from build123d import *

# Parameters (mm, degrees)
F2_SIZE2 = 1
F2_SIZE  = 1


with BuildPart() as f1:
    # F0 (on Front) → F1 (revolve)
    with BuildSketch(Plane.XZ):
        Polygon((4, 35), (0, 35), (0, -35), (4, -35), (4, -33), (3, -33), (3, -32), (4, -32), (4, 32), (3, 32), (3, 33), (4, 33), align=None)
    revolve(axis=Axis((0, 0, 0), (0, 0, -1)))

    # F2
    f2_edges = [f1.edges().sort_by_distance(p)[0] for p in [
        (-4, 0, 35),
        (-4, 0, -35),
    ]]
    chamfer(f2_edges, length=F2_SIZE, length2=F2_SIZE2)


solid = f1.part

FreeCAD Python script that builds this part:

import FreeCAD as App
import Part
import Sketcher
from FreeCAD import Vector
Q = App.Units.Quantity


def edges_at(feature, points):
    """Names of the edges that pass closest to the given points."""
    edges = feature.Shape.Edges
    near = lambda p: min(range(len(edges)), key=lambda i: edges[i].distToShape(Part.Vertex(*p))[0])
    return sorted({f"Edge{near(p) + 1}" for p in points})


def add_polygon(sketch, points):
    """Adds a closed chain of lines whose ends are joined by coincident constraints."""
    first, n = sketch.GeometryCount, len(points)
    for a, b in zip(points, points[1:] + points[:1]):
        sketch.addGeometry(Part.LineSegment(App.Vector(*a, 0), App.Vector(*b, 0)), False)
    for i in range(n):
        sketch.addConstraint(Sketcher.Constraint("Coincident", first + i, 2, first + (i + 1) % n, 1))

doc = App.newDocument("Part")
body = doc.addObject("PartDesign::Body", "Body")

# Sketch on XZ plane
sketch1 = body.newObject("Sketcher::SketchObject", "Sketch")
sketch1.AttachmentSupport = (doc.getObject("XZ_Plane"), [""])
sketch1.MapMode = "FlatFace"
add_polygon(sketch1, [(4, 35), (0, 35), (0, -35), (4, -35), (4, -33), (3, -33), (3, -32), (4, -32), (4, 32), (3, 32), (3, 33), (4, 33)])  # lines 0-11
sketch1.addConstraint([
    Sketcher.Constraint("Horizontal", 0),
    Sketcher.Constraint("Vertical", 1),
    Sketcher.Constraint("Horizontal", 2),
    Sketcher.Constraint("Vertical", 3),
    Sketcher.Constraint("Horizontal", 4),
    Sketcher.Constraint("Vertical", 5),
    Sketcher.Constraint("Horizontal", 6),
    Sketcher.Constraint("Vertical", 7),
    Sketcher.Constraint("Horizontal", 8),
    Sketcher.Constraint("Vertical", 9),
    Sketcher.Constraint("Horizontal", 10),
    Sketcher.Constraint("Vertical", 11),
    Sketcher.Constraint("Symmetric", 0, 2, 1, 2, -1, 1),
    Sketcher.Constraint("Symmetric", 5, 2, 8, 2, -1),
    Sketcher.Constraint("Symmetric", 3, 2, 10, 2, -1),
    Sketcher.Constraint("Vertical", 3, 2, 6, 2),
    Sketcher.Constraint("Equal", 10, 5),
    Sketcher.Constraint("DistanceX", 0, 2, 0, 1, Q("4 mm")),
    Sketcher.Constraint("DistanceX", 4, 2, 4, 1, Q("1 mm")),
    Sketcher.Constraint("DistanceY", 1, 2, 1, 1, Q("70 mm")),
    Sketcher.Constraint("DistanceY", 3, 1, 3, 2, Q("2 mm")),
])
revolution = body.newObject("PartDesign::Revolution", "Revolution")
revolution.Profile = sketch1
revolution.ReferenceAxis = (sketch1, ["V_Axis"])
revolution.Angle = 360
doc.recompute()

chamfer = body.newObject("PartDesign::Chamfer", "Chamfer")
chamfer.Base = (revolution, edges_at(revolution, [(-4, 0, 35), (-4, 0, -35)]))
chamfer.ChamferType = "Two distances"
chamfer.Size = 1
chamfer.Size2 = 1

doc.recompute()
